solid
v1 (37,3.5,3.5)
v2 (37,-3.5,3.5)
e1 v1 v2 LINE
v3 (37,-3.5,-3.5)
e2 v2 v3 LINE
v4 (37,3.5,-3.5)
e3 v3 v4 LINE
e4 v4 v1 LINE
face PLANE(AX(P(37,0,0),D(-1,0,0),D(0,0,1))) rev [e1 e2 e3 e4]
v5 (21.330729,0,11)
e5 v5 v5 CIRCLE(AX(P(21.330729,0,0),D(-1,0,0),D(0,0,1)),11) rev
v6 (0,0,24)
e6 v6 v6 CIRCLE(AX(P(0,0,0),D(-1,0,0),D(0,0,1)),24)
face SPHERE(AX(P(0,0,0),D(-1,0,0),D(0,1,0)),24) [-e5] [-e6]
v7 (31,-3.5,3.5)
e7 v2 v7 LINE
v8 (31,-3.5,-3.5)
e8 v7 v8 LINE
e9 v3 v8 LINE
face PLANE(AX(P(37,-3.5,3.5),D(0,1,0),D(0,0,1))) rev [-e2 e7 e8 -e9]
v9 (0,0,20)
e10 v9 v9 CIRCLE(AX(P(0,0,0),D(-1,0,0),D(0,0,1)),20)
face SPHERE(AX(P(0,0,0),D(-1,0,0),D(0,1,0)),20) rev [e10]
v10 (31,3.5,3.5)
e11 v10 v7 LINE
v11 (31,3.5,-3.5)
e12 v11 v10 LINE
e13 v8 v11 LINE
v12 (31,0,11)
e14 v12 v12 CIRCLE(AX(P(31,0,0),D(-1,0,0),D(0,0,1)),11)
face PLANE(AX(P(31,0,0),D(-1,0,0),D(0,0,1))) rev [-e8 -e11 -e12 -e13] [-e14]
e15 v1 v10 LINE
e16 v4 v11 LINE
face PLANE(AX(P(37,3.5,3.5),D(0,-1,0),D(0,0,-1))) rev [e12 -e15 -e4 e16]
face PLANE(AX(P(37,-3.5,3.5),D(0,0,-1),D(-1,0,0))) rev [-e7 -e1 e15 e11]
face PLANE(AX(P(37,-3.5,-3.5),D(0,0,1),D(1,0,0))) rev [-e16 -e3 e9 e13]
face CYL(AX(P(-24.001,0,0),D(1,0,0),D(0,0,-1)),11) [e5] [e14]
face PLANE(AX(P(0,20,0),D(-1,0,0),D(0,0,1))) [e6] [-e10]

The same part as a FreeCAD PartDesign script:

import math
import FreeCAD as App
import Part
import Sketcher
Q = App.Units.Quantity


def add_polygon(sketch, points):
    """Adds a closed chain of lines whose ends are joined by coincident constraints."""
    first, n = sketch.GeometryCount, len(points)
    for a, b in zip(points, points[1:] + points[:1]):
        sketch.addGeometry(Part.LineSegment(App.Vector(*a, 0), App.Vector(*b, 0)), False)
    for i in range(n):
        sketch.addConstraint(Sketcher.Constraint("Coincident", first + i, 2, first + (i + 1) % n, 1))

doc = App.newDocument("Part")
body = doc.addObject("PartDesign::Body", "Body")
body.AllowCompound = True

# Sketch on XY plane
sketch1 = body.newObject("Sketcher::SketchObject", "Sketch")
sketch1.AttachmentSupport = (doc.getObject("XY_Plane"), [""])
sketch1.MapMode = "FlatFace"
sketch1.addGeometry([
    Part.ArcOfCircle(Part.Circle(App.Vector(0, 0, 0), App.Vector(0, 0, 1), 20), math.radians(0), math.radians(90)),
    Part.LineSegment(App.Vector(20, 0, 0), App.Vector(24, 0, 0)),
    Part.ArcOfCircle(Part.Circle(App.Vector(0, 0, 0), App.Vector(0, 0, 1), 24), math.radians(0), math.radians(90)),
    Part.LineSegment(App.Vector(0, 24, 0), App.Vector(0, 20, 0)),
], False)
sketch1.addConstraint([
    Sketcher.Constraint("Coincident", 0, 1, 1, 1),
    Sketcher.Constraint("Coincident", 1, 2, 2, 1),
    Sketcher.Constraint("Coincident", 2, 2, 3, 1),
    Sketcher.Constraint("Coincident", 3, 2, 0, 2),
    Sketcher.Constraint("Horizontal", 1),
    Sketcher.Constraint("Vertical", 3),
    Sketcher.Constraint("Coincident", 0, 3, -1, 1),
    Sketcher.Constraint("Coincident", 2, 3, -1, 1),
    Sketcher.Constraint("PointOnObject", 0, 1, -1),
    Sketcher.Constraint("PointOnObject", 2, 2, -2),
    Sketcher.Constraint("Radius", 0, Q("20 mm")),
    Sketcher.Constraint("Radius", 2, Q("24 mm")),
])
revolution = body.newObject("PartDesign::Revolution", "Revolution")
revolution.Profile = sketch1
revolution.ReferenceAxis = (sketch1, ["H_Axis"])
revolution.Angle = 360

# Sketch on YZ plane
sketch2 = body.newObject("Sketcher::SketchObject", "Sketch001")
sketch2.AttachmentSupport = (doc.getObject("YZ_Plane"), [""])
sketch2.MapMode = "FlatFace"
sketch2.AttachmentOffset = App.Placement(App.Vector(0, 0, 30), App.Rotation())
sketch2.addGeometry(Part.Circle(App.Vector(0, 0, 0), App.Vector(0, 0, 1), 11), False)
sketch2.addConstraint([
    Sketcher.Constraint("Coincident", 0, 3, -1, 1),
    Sketcher.Constraint("Diameter", 0, Q("22 mm")),
])
pad1 = body.newObject("PartDesign::Pad", "Pad")
pad1.Profile = sketch2
pad1.Length = 1

# Sketch on YZ plane
sketch3 = body.newObject("Sketcher::SketchObject", "Sketch002")
sketch3.AttachmentSupport = (doc.getObject("YZ_Plane"), [""])
sketch3.MapMode = "FlatFace"
sketch3.AttachmentOffset = App.Placement(App.Vector(0, 0, 30), App.Rotation())
sketch3.addGeometry(Part.Circle(App.Vector(0, 0, 0), App.Vector(0, 0, 1), 11), False)
sketch3.addConstraint([
    Sketcher.Constraint("Coincident", 0, 3, -1, 1),
    Sketcher.Constraint("Diameter", 0, Q("22 mm")),
])
pad2 = body.newObject("PartDesign::Pad", "Pad001")
pad2.Profile = sketch3
pad2.Type = "UpToFirst"
pad2.Reversed = True

# Sketch on YZ plane
sketch4 = body.newObject("Sketcher::SketchObject", "Sketch003")
sketch4.AttachmentSupport = (doc.getObject("YZ_Plane"), [""])
sketch4.MapMode = "FlatFace"
sketch4.AttachmentOffset = App.Placement(App.Vector(0, 0, 31), App.Rotation())
add_polygon(sketch4, [(3.5, 3.5), (-3.5, 3.5), (-3.5, -3.5), (3.5, -3.5)])  # lines 0-3
sketch4.addConstraint([
    Sketcher.Constraint("Horizontal", 0),
    Sketcher.Constraint("Vertical", 1),
    Sketcher.Constraint("Horizontal", 2),
    Sketcher.Constraint("Vertical", 3),
    Sketcher.Constraint("Symmetric", 0, 2, 2, 2, -1, 1),
    Sketcher.Constraint("Equal", 2, 1),
    Sketcher.Constraint("DistanceX", 0, 2, 0, 1, Q("7 mm")),
])
pad3 = body.newObject("PartDesign::Pad", "Pad002")
pad3.Profile = sketch4
pad3.Length = 6

doc.recompute()
